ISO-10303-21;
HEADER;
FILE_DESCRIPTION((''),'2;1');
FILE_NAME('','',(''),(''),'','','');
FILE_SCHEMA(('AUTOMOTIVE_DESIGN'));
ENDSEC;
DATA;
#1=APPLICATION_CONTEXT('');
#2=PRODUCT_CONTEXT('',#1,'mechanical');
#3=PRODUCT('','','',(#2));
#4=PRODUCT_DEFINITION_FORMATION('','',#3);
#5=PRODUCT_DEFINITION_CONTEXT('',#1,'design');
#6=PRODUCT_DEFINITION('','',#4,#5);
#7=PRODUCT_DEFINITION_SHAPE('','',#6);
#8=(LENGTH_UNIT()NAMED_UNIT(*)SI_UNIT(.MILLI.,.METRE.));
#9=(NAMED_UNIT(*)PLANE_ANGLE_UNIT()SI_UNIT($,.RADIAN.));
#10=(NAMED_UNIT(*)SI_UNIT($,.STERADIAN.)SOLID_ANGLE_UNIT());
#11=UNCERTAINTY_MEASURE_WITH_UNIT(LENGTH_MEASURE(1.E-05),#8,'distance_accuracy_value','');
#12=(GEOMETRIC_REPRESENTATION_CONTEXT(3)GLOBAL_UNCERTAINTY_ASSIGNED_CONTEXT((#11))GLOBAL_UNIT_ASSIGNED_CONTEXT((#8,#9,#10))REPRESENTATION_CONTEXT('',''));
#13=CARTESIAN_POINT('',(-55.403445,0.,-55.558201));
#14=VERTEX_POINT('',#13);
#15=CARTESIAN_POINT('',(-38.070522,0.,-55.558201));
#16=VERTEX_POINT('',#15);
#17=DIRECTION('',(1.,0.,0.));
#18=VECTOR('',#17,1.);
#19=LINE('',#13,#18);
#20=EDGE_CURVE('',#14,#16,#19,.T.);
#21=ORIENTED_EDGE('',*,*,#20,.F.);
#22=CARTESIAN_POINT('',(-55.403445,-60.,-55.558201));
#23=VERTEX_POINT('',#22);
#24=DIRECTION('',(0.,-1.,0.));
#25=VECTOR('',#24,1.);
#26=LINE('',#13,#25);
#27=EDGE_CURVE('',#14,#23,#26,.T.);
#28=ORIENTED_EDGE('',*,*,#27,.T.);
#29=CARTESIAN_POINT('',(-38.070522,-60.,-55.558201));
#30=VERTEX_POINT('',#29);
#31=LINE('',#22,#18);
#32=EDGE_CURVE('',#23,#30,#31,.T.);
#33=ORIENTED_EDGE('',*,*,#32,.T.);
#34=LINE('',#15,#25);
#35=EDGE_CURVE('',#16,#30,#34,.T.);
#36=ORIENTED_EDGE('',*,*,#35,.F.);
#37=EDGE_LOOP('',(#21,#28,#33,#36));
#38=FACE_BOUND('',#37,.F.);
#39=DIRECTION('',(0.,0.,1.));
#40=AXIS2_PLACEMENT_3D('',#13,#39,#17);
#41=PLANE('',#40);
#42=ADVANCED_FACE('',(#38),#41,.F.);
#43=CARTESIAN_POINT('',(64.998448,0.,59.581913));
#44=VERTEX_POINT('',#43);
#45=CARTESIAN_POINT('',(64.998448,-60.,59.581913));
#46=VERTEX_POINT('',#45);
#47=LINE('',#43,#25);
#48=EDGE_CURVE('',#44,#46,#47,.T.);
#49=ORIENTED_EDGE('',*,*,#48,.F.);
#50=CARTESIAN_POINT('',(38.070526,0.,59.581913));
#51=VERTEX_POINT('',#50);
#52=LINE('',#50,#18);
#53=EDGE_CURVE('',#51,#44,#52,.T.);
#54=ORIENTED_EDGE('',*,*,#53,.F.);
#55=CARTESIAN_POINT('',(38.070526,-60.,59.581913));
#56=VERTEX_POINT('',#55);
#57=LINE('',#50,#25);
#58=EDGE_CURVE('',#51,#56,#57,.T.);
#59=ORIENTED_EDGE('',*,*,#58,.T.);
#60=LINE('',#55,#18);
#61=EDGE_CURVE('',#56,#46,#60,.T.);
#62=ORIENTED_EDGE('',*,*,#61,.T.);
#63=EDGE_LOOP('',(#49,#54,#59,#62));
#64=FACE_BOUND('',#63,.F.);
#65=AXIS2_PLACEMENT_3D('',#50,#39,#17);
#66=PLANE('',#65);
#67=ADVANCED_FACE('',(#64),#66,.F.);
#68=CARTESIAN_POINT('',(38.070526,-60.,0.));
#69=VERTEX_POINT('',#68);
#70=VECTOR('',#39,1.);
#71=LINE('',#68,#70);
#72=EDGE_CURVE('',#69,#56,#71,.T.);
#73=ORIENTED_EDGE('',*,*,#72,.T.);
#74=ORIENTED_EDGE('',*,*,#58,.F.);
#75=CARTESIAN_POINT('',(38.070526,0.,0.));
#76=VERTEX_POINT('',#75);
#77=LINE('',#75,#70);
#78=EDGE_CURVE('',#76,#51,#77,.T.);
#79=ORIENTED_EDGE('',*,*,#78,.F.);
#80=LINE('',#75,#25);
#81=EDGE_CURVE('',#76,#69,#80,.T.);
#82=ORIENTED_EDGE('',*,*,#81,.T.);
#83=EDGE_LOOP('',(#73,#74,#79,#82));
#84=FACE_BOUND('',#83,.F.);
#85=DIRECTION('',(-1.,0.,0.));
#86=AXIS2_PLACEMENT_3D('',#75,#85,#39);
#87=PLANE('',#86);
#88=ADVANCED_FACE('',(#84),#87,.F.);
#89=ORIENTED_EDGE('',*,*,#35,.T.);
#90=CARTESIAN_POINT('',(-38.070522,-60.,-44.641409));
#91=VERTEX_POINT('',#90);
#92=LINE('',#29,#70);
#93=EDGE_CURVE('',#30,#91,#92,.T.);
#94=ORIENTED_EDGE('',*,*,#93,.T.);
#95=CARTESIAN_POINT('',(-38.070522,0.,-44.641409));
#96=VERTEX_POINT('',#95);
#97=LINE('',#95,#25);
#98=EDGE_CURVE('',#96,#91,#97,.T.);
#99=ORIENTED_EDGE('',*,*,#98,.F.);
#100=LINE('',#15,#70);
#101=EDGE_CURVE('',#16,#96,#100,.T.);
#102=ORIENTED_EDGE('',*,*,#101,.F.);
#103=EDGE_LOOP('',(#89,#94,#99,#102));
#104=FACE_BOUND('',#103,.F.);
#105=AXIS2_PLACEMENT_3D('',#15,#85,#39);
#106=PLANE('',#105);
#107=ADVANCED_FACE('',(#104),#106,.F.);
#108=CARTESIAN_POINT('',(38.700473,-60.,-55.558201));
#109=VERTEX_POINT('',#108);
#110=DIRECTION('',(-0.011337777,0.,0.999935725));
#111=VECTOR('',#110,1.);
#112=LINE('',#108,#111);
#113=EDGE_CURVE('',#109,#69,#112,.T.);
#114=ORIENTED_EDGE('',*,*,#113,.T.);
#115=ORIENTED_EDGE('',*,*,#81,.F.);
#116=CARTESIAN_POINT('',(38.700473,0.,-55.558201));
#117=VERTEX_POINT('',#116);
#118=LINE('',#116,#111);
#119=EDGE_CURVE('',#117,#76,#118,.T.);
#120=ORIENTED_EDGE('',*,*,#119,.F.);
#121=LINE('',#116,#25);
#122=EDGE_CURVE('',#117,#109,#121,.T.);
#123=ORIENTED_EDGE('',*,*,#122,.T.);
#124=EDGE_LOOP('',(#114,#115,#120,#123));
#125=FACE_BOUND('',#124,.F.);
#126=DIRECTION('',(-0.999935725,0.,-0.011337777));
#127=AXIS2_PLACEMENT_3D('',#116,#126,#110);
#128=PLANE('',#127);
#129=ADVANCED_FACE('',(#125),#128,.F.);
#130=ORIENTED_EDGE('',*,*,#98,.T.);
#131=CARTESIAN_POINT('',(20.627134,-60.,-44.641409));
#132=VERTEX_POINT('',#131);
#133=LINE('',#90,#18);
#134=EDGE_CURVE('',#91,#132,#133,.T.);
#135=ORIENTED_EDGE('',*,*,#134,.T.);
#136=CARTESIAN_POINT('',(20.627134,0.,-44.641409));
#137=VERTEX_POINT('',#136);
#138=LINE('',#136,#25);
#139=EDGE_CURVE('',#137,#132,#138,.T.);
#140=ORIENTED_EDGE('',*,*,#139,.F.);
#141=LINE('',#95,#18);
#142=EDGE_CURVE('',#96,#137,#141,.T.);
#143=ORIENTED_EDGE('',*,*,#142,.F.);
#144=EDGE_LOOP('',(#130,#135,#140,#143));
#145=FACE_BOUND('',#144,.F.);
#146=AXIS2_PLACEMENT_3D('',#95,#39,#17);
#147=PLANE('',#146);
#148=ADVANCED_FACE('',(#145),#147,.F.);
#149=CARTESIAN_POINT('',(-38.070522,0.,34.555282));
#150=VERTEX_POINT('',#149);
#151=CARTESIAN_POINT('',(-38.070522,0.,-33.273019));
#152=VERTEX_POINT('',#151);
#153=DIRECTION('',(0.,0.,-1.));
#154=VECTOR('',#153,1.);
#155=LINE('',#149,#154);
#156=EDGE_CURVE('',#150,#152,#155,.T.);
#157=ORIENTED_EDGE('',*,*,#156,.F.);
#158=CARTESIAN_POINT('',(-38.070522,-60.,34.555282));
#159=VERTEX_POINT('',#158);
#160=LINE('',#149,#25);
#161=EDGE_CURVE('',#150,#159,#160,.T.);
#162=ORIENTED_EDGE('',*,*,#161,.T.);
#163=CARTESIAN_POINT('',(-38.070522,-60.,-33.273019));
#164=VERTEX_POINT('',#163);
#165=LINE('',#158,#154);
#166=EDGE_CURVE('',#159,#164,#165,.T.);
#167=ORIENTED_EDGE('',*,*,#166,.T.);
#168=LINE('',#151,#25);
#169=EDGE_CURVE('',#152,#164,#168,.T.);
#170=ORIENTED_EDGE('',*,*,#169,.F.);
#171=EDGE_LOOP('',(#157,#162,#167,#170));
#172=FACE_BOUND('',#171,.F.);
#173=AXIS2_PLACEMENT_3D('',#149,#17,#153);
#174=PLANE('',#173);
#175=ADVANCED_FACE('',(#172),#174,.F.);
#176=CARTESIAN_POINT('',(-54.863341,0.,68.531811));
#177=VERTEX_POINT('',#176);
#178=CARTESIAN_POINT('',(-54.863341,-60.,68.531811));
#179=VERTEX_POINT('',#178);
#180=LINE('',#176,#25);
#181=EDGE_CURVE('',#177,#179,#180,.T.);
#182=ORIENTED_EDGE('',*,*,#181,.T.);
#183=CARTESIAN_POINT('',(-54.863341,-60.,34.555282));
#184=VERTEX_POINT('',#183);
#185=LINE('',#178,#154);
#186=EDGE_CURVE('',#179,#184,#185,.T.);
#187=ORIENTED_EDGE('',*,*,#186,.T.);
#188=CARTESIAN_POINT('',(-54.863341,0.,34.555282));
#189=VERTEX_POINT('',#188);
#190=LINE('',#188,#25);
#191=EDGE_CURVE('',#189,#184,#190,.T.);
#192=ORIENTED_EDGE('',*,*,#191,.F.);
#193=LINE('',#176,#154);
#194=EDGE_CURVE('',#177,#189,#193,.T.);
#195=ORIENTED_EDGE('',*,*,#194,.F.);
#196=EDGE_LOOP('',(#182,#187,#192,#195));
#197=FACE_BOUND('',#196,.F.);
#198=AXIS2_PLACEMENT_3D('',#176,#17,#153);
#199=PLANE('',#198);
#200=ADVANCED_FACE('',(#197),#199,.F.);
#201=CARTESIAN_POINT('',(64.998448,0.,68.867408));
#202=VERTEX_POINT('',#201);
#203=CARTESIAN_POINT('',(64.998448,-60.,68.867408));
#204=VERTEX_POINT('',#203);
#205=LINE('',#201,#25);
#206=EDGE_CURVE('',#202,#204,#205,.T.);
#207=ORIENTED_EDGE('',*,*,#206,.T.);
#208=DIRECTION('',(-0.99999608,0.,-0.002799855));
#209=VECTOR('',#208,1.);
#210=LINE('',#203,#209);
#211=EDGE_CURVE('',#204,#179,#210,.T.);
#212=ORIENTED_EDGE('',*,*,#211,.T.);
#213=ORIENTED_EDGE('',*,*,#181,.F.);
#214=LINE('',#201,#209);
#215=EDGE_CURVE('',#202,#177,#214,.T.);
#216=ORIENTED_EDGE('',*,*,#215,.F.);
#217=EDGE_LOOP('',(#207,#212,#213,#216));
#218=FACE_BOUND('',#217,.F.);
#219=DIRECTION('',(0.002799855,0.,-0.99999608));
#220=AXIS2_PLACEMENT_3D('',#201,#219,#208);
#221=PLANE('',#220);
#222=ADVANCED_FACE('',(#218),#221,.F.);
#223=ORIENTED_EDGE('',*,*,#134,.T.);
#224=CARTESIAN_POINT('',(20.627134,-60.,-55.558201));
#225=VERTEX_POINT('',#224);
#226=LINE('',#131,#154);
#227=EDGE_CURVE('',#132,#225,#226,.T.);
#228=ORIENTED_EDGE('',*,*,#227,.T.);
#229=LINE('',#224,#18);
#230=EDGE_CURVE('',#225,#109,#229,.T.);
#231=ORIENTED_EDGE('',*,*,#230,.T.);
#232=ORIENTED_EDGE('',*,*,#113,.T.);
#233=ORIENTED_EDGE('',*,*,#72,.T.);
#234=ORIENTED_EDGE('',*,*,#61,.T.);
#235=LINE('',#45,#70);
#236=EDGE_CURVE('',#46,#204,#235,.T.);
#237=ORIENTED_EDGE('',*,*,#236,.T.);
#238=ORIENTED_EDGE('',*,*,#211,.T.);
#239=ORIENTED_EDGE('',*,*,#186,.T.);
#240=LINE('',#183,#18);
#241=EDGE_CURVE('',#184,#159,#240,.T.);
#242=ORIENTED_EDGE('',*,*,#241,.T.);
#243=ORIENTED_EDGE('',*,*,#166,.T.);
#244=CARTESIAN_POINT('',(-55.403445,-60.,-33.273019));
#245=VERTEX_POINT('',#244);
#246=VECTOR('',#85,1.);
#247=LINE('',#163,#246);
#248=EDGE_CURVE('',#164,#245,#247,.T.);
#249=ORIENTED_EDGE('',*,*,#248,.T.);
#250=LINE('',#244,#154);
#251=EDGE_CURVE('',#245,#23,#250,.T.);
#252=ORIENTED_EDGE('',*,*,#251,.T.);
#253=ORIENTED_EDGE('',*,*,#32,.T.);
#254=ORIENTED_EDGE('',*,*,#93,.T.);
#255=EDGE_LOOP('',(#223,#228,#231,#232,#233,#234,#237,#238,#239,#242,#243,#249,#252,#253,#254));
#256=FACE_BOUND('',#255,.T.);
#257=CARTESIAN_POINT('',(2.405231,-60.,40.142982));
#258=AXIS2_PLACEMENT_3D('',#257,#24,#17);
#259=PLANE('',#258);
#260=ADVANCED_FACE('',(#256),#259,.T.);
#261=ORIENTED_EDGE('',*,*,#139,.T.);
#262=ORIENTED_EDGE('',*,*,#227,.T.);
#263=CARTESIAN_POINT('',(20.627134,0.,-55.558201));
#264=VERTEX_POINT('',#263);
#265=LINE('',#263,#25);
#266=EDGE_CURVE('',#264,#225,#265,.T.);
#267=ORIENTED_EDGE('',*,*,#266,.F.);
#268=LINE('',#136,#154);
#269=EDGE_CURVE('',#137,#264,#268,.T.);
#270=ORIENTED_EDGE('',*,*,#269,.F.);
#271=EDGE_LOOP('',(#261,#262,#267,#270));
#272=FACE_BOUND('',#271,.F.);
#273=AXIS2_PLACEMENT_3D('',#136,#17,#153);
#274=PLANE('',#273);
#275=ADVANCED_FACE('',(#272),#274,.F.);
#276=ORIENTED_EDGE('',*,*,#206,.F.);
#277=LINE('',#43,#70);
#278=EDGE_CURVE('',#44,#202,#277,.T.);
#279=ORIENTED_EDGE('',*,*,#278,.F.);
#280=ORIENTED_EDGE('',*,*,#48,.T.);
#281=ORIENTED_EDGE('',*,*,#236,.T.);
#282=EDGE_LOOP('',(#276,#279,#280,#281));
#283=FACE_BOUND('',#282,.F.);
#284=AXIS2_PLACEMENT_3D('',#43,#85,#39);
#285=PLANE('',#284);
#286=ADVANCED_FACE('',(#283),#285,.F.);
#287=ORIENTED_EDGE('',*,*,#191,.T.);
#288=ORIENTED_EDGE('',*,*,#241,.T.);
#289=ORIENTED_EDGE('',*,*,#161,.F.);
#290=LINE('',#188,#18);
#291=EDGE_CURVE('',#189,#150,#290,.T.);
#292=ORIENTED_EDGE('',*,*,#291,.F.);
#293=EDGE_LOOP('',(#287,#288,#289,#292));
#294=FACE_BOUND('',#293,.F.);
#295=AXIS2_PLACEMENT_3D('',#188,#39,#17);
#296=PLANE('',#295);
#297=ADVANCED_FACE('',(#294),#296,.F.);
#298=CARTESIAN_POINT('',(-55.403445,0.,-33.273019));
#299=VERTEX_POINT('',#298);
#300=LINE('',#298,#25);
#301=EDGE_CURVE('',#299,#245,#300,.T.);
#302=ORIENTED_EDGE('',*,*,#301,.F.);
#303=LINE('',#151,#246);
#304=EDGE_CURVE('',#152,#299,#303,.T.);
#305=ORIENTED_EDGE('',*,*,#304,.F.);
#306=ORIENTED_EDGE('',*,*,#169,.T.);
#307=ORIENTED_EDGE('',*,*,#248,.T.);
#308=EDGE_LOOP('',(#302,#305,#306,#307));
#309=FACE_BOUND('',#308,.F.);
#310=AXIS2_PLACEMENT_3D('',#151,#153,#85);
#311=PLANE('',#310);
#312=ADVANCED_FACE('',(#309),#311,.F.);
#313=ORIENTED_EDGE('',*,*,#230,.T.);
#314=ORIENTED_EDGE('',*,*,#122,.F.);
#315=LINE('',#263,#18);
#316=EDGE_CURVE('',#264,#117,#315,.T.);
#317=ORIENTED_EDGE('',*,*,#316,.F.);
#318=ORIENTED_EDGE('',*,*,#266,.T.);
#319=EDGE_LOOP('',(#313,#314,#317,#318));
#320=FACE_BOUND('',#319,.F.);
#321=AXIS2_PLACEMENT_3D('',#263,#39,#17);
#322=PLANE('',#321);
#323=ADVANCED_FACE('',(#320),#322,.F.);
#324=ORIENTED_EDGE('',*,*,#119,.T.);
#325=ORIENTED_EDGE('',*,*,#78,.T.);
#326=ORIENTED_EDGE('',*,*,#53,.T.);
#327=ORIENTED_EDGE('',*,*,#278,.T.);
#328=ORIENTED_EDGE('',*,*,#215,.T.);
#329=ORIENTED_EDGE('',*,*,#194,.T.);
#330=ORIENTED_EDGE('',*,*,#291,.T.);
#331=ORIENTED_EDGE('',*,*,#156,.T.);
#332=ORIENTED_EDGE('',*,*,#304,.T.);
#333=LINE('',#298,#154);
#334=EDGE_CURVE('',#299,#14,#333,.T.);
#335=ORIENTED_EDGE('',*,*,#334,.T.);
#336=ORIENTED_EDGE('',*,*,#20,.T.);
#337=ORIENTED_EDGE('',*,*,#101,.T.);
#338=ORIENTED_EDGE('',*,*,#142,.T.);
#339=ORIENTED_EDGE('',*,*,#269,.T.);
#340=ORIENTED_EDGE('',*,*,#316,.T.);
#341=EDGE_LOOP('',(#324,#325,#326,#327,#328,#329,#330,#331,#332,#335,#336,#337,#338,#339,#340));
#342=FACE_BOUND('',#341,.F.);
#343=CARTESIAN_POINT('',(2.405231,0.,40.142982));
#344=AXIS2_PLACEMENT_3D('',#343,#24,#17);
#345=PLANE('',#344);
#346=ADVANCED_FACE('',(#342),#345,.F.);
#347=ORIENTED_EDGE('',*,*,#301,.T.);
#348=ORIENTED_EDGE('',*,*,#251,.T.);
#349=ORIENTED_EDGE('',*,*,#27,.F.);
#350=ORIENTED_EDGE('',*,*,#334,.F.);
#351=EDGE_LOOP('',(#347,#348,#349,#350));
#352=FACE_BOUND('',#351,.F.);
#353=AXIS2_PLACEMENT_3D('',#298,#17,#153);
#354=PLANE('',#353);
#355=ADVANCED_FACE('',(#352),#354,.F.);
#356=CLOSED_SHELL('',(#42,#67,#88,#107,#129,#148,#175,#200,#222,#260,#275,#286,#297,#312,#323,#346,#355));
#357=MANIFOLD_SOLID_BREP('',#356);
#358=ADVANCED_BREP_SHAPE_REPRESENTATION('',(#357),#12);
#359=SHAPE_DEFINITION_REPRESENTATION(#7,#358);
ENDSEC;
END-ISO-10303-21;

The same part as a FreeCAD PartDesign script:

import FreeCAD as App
import Part
import Sketcher

doc = App.newDocument("Part")
body = doc.addObject("PartDesign::Body", "Body")

sketch1 = body.newObject("Sketcher::SketchObject", "Sketch")
sketch1.AttachmentSupport = (doc.getObject("XZ_Plane"), [""])
sketch1.MapMode = "FlatFace"
sketch1.addGeometry(Part.LineSegment(App.Vector(38.070526, 0, 0), App.Vector(38.070526, 59.581913, 0)), False)
sketch1.addGeometry(Part.LineSegment(App.Vector(38.070526, 59.581913, 0), App.Vector(64.998448, 59.581913, 0)), False)
sketch1.addGeometry(Part.LineSegment(App.Vector(64.998448, 59.581913, 0), App.Vector(64.998448, 68.867408, 0)), False)
sketch1.addGeometry(Part.LineSegment(App.Vector(64.998448, 68.867408, 0), App.Vector(-54.863341, 68.531811, 0)), False)
sketch1.addGeometry(Part.LineSegment(App.Vector(-54.863341, 68.531811, 0), App.Vector(-54.863341, 34.555282, 0)), False)
sketch1.addGeometry(Part.LineSegment(App.Vector(-54.863341, 34.555282, 0), App.Vector(-38.070522, 34.555282, 0)), False)
sketch1.addGeometry(Part.LineSegment(App.Vector(-38.070522, 34.555282, 0), App.Vector(-38.070522, -33.273019, 0)), False)
sketch1.addGeometry(Part.LineSegment(App.Vector(-38.070522, -33.273019, 0), App.Vector(-55.403445, -33.273019, 0)), False)
sketch1.addGeometry(Part.LineSegment(App.Vector(-55.403445, -33.273019, 0), App.Vector(-55.403445, -55.558201, 0)), False)
sketch1.addGeometry(Part.LineSegment(App.Vector(-55.403445, -55.558201, 0), App.Vector(-38.070522, -55.558201, 0)), False)
sketch1.addGeometry(Part.LineSegment(App.Vector(-38.070522, -55.558201, 0), App.Vector(-38.070522, -44.641409, 0)), False)
sketch1.addGeometry(Part.LineSegment(App.Vector(-38.070522, -44.641409, 0), App.Vector(20.627134, -44.641409, 0)), False)
sketch1.addGeometry(Part.LineSegment(App.Vector(20.627134, -44.641409, 0), App.Vector(20.627134, -55.558201, 0)), False)
sketch1.addGeometry(Part.LineSegment(App.Vector(20.627134, -55.558201, 0), App.Vector(38.700473, -55.558201, 0)), False)
sketch1.addGeometry(Part.LineSegment(App.Vector(38.700473, -55.558201, 0), App.Vector(38.070526, 0, 0)), False)
sketch1.addConstraint(Sketcher.Constraint("Coincident", 0, 2, 1, 1))
sketch1.addConstraint(Sketcher.Constraint("Coincident", 1, 2, 2, 1))
sketch1.addConstraint(Sketcher.Constraint("Coincident", 2, 2, 3, 1))
sketch1.addConstraint(Sketcher.Constraint("Coincident", 3, 2, 4, 1))
sketch1.addConstraint(Sketcher.Constraint("Coincident", 4, 2, 5, 1))
sketch1.addConstraint(Sketcher.Constraint("Coincident", 5, 2, 6, 1))
sketch1.addConstraint(Sketcher.Constraint("Coincident", 6, 2, 7, 1))
sketch1.addConstraint(Sketcher.Constraint("Coincident", 7, 2, 8, 1))
sketch1.addConstraint(Sketcher.Constraint("Coincident", 8, 2, 9, 1))
sketch1.addConstraint(Sketcher.Constraint("Coincident", 9, 2, 10, 1))
sketch1.addConstraint(Sketcher.Constraint("Coincident", 10, 2, 11, 1))
sketch1.addConstraint(Sketcher.Constraint("Coincident", 11, 2, 12, 1))
sketch1.addConstraint(Sketcher.Constraint("Coincident", 12, 2, 13, 1))
sketch1.addConstraint(Sketcher.Constraint("Coincident", 13, 2, 14, 1))
sketch1.addConstraint(Sketcher.Constraint("Coincident", 14, 2, 0, 1))
sketch1.addConstraint(Sketcher.Constraint("Vertical", 0))
sketch1.addConstraint(Sketcher.Constraint("Horizontal", 1))
sketch1.addConstraint(Sketcher.Constraint("Vertical", 2))
sketch1.addConstraint(Sketcher.Constraint("Vertical", 4))
sketch1.addConstraint(Sketcher.Constraint("Horizontal", 5))
sketch1.addConstraint(Sketcher.Constraint("Vertical", 6))
sketch1.addConstraint(Sketcher.Constraint("Horizontal", 7))
sketch1.addConstraint(Sketcher.Constraint("Vertical", 8))
sketch1.addConstraint(Sketcher.Constraint("Horizontal", 9))
sketch1.addConstraint(Sketcher.Constraint("Vertical", 10))
sketch1.addConstraint(Sketcher.Constraint("Horizontal", 11))
sketch1.addConstraint(Sketcher.Constraint("Vertical", 12))
sketch1.addConstraint(Sketcher.Constraint("Horizontal", 13))
sketch1.addConstraint(Sketcher.Constraint("PointOnObject", 14, 2, -1))
sketch1.addConstraint(Sketcher.Constraint("Horizontal", 9, 2, 12, 2))
sketch1.addConstraint(Sketcher.Constraint("Vertical", 6, 2, 9, 2))
sketch1.addConstraint(Sketcher.Constraint("DistanceY", 6, 2, 6, 1, 67.828301))
sketch1.addConstraint(Sketcher.Constraint("DistanceX", 1, 1, 1, 2, 26.927922))
sketch1.addConstraint(Sketcher.Constraint("DistanceX", 5, 1, 5, 2, 16.792819))
sketch1.addConstraint(Sketcher.Constraint("DistanceX", 13, 1, 13, 2, 18.073339))
sketch1.addConstraint(Sketcher.Constraint("DistanceY", 4, 2, 4, 1, 33.976529))
sketch1.addConstraint(Sketcher.Constraint("DistanceY", 8, 2, 8, 1, 22.285182))
sketch1.addConstraint(Sketcher.Constraint("DistanceY", 10, 1, 10, 2, 10.916792))
sketch1.addConstraint(Sketcher.Constraint("DistanceY", 8, 2, -1, 1, 55.558201))
sketch1.addConstraint(Sketcher.Constraint("DistanceY", 0, 2, 3, 2, 8.949898))
sketch1.addConstraint(Sketcher.Constraint("Distance", 3, 119.862259))
sketch1.addConstraint(Sketcher.Constraint("DistanceX", 7, 2, 7, 1, 17.332923))
sketch1.addConstraint(Sketcher.Constraint("DistanceX", 11, 1, 11, 2, 58.697656))
sketch1.addConstraint(Sketcher.Constraint("DistanceY", 2, 1, 2, 2, 9.285495))
sketch1.addConstraint(Sketcher.Constraint("DistanceX", 3, 2, -1, 1, 54.863341))
pad1 = body.newObject("PartDesign::Pad", "Pad")
pad1.Profile = sketch1
pad1.Length = 60

doc.recompute()
